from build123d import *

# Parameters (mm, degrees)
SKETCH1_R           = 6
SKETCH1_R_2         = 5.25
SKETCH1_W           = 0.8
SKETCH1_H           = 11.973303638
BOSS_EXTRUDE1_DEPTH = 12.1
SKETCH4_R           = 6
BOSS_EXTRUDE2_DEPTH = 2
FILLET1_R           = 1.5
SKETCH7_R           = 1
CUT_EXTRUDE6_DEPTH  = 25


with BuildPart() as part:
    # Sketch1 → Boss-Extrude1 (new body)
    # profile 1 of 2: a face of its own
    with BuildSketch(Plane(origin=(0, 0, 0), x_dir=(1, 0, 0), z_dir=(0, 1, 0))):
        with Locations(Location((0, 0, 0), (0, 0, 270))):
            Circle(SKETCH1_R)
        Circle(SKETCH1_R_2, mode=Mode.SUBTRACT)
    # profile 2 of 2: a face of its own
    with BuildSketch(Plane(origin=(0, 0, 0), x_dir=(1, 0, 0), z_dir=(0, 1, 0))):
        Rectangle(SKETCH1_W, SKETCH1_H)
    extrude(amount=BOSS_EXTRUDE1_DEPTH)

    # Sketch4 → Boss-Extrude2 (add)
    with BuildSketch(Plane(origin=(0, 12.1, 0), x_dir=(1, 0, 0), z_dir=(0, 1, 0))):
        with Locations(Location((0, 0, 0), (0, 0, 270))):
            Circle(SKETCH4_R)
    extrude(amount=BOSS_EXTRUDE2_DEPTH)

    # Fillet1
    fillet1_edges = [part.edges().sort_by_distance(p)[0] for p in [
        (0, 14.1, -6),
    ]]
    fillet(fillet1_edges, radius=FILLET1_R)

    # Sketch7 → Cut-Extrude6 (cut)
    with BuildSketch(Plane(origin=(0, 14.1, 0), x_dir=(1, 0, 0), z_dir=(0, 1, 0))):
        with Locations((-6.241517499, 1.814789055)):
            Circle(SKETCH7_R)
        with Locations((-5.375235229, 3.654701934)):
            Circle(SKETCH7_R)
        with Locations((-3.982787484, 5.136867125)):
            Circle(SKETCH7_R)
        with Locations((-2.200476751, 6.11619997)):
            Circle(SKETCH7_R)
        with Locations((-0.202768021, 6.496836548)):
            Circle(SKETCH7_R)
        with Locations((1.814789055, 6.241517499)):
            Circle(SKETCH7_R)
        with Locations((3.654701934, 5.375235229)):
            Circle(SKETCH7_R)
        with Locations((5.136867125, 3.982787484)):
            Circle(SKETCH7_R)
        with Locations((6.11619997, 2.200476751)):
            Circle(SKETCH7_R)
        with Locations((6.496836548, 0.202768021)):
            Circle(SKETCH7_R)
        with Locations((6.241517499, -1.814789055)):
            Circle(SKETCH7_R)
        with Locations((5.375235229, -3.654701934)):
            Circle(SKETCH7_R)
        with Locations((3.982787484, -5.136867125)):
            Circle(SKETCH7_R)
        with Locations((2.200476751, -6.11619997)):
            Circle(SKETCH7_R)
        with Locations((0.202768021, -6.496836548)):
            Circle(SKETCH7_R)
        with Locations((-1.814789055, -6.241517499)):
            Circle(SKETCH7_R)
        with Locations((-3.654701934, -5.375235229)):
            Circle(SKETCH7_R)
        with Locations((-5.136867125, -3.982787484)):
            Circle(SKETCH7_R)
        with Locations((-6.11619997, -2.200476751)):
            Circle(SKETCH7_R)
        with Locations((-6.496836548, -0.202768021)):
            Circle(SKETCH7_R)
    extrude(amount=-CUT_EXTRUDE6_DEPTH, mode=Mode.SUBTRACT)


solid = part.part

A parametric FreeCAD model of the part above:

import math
import FreeCAD as App
import Part
import Sketcher
Q = App.Units.Quantity


def edges_at(feature, points):
    """Names of the edges that pass closest to the given points."""
    edges = feature.Shape.Edges
    near = lambda p: min(range(len(edges)), key=lambda i: edges[i].distToShape(Part.Vertex(*p))[0])
    return sorted({f"Edge{near(p) + 1}" for p in points})

doc = App.newDocument("Part")
params = doc.addObject("Spreadsheet::Sheet", "Params")
for row, (alias, value) in enumerate([
    ("sketch1_diameter", "12 mm"),
    ("sketch1_radius", "5.25 mm"),
    ("pad1_length", "12.1 mm"),
    ("sketch2_diameter", "12 mm"),
    ("pad2_length", "2 mm"),
    ("fillet_radius", "1.5 mm"),
    ("sketch3_diameter", "2 mm"),
    ("pocket1_length", "25 mm"),
], start=1):
    params.set(f"A{row}", alias)
    params.set(f"B{row}", "=" + value)
    params.setAlias(f"B{row}", alias)

body = doc.addObject("PartDesign::Body", "Body")

sketch1 = body.newObject("Sketcher::SketchObject", "Sketch")
sketch1.AttachmentSupport = (doc.getObject("XZ_Plane"), [""])
sketch1.MapMode = "FlatFace"
sketch1.addGeometry([
    Part.Circle(App.Vector(0, 0, 0), App.Vector(0, 0, 1), 6),
    Part.LineSegment(App.Vector(0, 5, 0), App.Vector(0, -5, 0)),
    Part.ArcOfCircle(Part.Circle(App.Vector(0, 0, 0), App.Vector(0, 0, 1), 5), math.radians(-86), math.radians(86)),
    Part.ArcOfCircle(Part.Circle(App.Vector(0, 0, 0), App.Vector(0, 0, 1), 5), math.radians(94), math.radians(266)),
    Part.LineSegment(App.Vector(0, -5, 0), App.Vector(0, 5, 0)),
], False)
sketch1.addConstraint([
    Sketcher.Constraint("Coincident", 1, 1, 2, 2),
    Sketcher.Constraint("Coincident", 2, 1, 1, 2),
    Sketcher.Constraint("Coincident", 3, 1, 4, 2),
    Sketcher.Constraint("Coincident", 4, 1, 3, 2),
    Sketcher.Constraint("Vertical", 1),
    Sketcher.Constraint("Vertical", 4),
    Sketcher.Constraint("Coincident", 0, 3, -1, 1),
    Sketcher.Constraint("Coincident", 2, 3, -1, 1),
    Sketcher.Constraint("Coincident", 3, 3, -1, 1),
    Sketcher.Constraint("Equal", 2, 3),
    Sketcher.Constraint("Horizontal", 1, 1, 3, 1),
    Sketcher.Constraint("Diameter", 0, Q("12 mm")),
    Sketcher.Constraint("Radius", 2, Q("5.25 mm")),
    Sketcher.Constraint("DistanceX", -1, 1, 1, 1, Q("0.4 mm")),
])
sketch1.setExpression("Constraints[11]", "Params.sketch1_diameter")
sketch1.setExpression("Constraints[12]", "Params.sketch1_radius")
pad1 = body.newObject("PartDesign::Pad", "Pad")
pad1.Profile = sketch1
pad1.setExpression("Length", "Params.pad1_length")
pad1.Reversed = True

sketch2 = body.newObject("Sketcher::SketchObject", "Sketch001")
sketch2.AttachmentSupport = (doc.getObject("XZ_Plane"), [""])
sketch2.MapMode = "FlatFace"
sketch2.AttachmentOffset = App.Placement(App.Vector(0, 0, -12.1), App.Rotation())
sketch2.addGeometry(Part.Circle(App.Vector(0, 0, 0), App.Vector(0, 0, 1), 6), False)
sketch2.addConstraint([
    Sketcher.Constraint("Coincident", 0, 3, -1, 1),
    Sketcher.Constraint("Diameter", 0, Q("12 mm")),
])
sketch2.setExpression("Constraints[1]", "Params.sketch2_diameter")
pad2 = body.newObject("PartDesign::Pad", "Pad001")
pad2.Profile = sketch2
pad2.setExpression("Length", "Params.pad2_length")
pad2.Reversed = True
doc.recompute()

fillet = body.newObject("PartDesign::Fillet", "Fillet")
fillet.Base = (pad2, edges_at(pad2, [(0, 14.1, -6)]))
fillet.setExpression("Radius", "Params.fillet_radius")

sketch3 = body.newObject("Sketcher::SketchObject", "Sketch002")
sketch3.AttachmentSupport = (doc.getObject("XZ_Plane"), [""])
sketch3.MapMode = "FlatFace"
sketch3.AttachmentOffset = App.Placement(App.Vector(0, 0, -14.1), App.Rotation())
sketch3.addGeometry([
    Part.Circle(App.Vector(-6.2, -1.8, 0), App.Vector(0, 0, 1), 1),
    Part.Circle(App.Vector(-5.4, -3.7, 0), App.Vector(0, 0, 1), 1),
    Part.Circle(App.Vector(-4, -5.1, 0), App.Vector(0, 0, 1), 1),
    Part.Circle(App.Vector(-2.2, -6.1, 0), App.Vector(0, 0, 1), 1),
    Part.Circle(App.Vector(-0.2, -6.5, 0), App.Vector(0, 0, 1), 1),
    Part.Circle(App.Vector(1.8, -6.2, 0), App.Vector(0, 0, 1), 1),
    Part.Circle(App.Vector(3.7, -5.4, 0), App.Vector(0, 0, 1), 1),
    Part.Circle(App.Vector(5.1, -4, 0), App.Vector(0, 0, 1), 1),
    Part.Circle(App.Vector(6.1, -2.2, 0), App.Vector(0, 0, 1), 1),
    Part.Circle(App.Vector(6.5, -0.2, 0), App.Vector(0, 0, 1), 1),
    Part.Circle(App.Vector(6.2, 1.8, 0), App.Vector(0, 0, 1), 1),
    Part.Circle(App.Vector(5.4, 3.7, 0), App.Vector(0, 0, 1), 1),
    Part.Circle(App.Vector(4, 5.1, 0), App.Vector(0, 0, 1), 1),
    Part.Circle(App.Vector(2.2, 6.1, 0), App.Vector(0, 0, 1), 1),
    Part.Circle(App.Vector(0.2, 6.5, 0), App.Vector(0, 0, 1), 1),
    Part.Circle(App.Vector(-1.8, 6.2, 0), App.Vector(0, 0, 1), 1),
    Part.Circle(App.Vector(-3.7, 5.4, 0), App.Vector(0, 0, 1), 1),
    Part.Circle(App.Vector(-5.1, 4, 0), App.Vector(0, 0, 1), 1),
    Part.Circle(App.Vector(-6.1, 2.2, 0), App.Vector(0, 0, 1), 1),
    Part.Circle(App.Vector(-6.5, 0.2, 0), App.Vector(0, 0, 1), 1),
], False)
sketch3.addConstraint([
    Sketcher.Constraint("Equal", 0, 1),
    Sketcher.Constraint("Equal", 1, 2),
    Sketcher.Constraint("Equal", 2, 3),
    Sketcher.Constraint("Equal", 3, 4),
    Sketcher.Constraint("Equal", 4, 5),
    Sketcher.Constraint("Equal", 5, 6),
    Sketcher.Constraint("Equal", 6, 7),
    Sketcher.Constraint("Equal", 7, 8),
    Sketcher.Constraint("Equal", 8, 9),
    Sketcher.Constraint("Equal", 9, 10),
    Sketcher.Constraint("Equal", 10, 11),
    Sketcher.Constraint("Equal", 11, 12),
    Sketcher.Constraint("Equal", 12, 13),
    Sketcher.Constraint("Equal", 13, 14),
    Sketcher.Constraint("Equal", 14, 15),
    Sketcher.Constraint("Equal", 15, 16),
    Sketcher.Constraint("Equal", 16, 17),
    Sketcher.Constraint("Equal", 17, 18),
    Sketcher.Constraint("Equal", 18, 19),
    Sketcher.Constraint("Symmetric", 0, 3, 10, 3, -1, 1),
    Sketcher.Constraint("Symmetric", 1, 3, 11, 3, -1, 1),
    Sketcher.Constraint("Symmetric", 2, 3, 12, 3, -1, 1),
    Sketcher.Constraint("Symmetric", 3, 3, 13, 3, -1, 1),
    Sketcher.Constraint("Symmetric", 4, 3, 14, 3, -1, 1),
    Sketcher.Constraint("Symmetric", 5, 3, 15, 3, -1, 1),
    Sketcher.Constraint("Symmetric", 6, 3, 16, 3, -1, 1),
    Sketcher.Constraint("Symmetric", 7, 3, 17, 3, -1, 1),
    Sketcher.Constraint("Symmetric", 8, 3, 18, 3, -1, 1),
    Sketcher.Constraint("Symmetric", 9, 3, 19, 3, -1, 1),
    Sketcher.Constraint("Diameter", 0, Q("2 mm")),
    Sketcher.Constraint("DistanceY", 1, 3, -1, 1, Q("3.654702 mm")),
    Sketcher.Constraint("DistanceY", 3, 3, -1, 1, Q("6.1162 mm")),
    Sketcher.Constraint("DistanceX", -1, 1, 6, 3, Q("3.654702 mm")),
    Sketcher.Constraint("DistanceX", -1, 1, 8, 3, Q("6.1162 mm")),
    Sketcher.Constraint("DistanceY", 4, 3, 6, 3, Q("1.121601 mm")),
    Sketcher.Constraint("DistanceX", 11, 3, 9, 3, Q("1.121601 mm")),
    Sketcher.Constraint("DistanceY", 0, 3, -1, 1, Q("1.814789 mm")),
    Sketcher.Constraint("DistanceX", 4, 3, -1, 1, Q("0.202768 mm")),
    Sketcher.Constraint("DistanceX", -1, 1, 5, 3, Q("1.814789 mm")),
    Sketcher.Constraint("DistanceY", 9, 3, -1, 1, Q("0.202768 mm")),
    Sketcher.Constraint("DistanceX", 0, 3, 2, 3, Q("2.25873 mm")),
    Sketcher.Constraint("DistanceY", 2, 3, 0, 3, Q("3.322078 mm")),
    Sketcher.Constraint("DistanceX", 2, 3, 3, 3, Q("1.782311 mm")),
    Sketcher.Constraint("DistanceX", 1, 3, 3, 3, Q("3.174758 mm")),
    Sketcher.Constraint("DistanceX", 3, 3, 4, 3, Q("1.997709 mm")),
    Sketcher.Constraint("DistanceY", 4, 3, 2, 3, Q("1.359969 mm")),
    Sketcher.Constraint("DistanceY", 4, 3, 5, 3, Q("0.255319 mm")),
    Sketcher.Constraint("DistanceX", 5, 3, 7, 3, Q("3.322078 mm")),
    Sketcher.Constraint("DistanceY", 5, 3, 7, 3, Q("2.25873 mm")),
    Sketcher.Constraint("DistanceY", 7, 3, 8, 3, Q("1.782311 mm")),
])
sketch3.setExpression("Constraints[29]", "Params.sketch3_diameter")
pocket1 = body.newObject("PartDesign::Pocket", "Pocket")
pocket1.Profile = sketch3
pocket1.setExpression("Length", "Params.pocket1_length")
pocket1.Reversed = True

doc.recompute()
